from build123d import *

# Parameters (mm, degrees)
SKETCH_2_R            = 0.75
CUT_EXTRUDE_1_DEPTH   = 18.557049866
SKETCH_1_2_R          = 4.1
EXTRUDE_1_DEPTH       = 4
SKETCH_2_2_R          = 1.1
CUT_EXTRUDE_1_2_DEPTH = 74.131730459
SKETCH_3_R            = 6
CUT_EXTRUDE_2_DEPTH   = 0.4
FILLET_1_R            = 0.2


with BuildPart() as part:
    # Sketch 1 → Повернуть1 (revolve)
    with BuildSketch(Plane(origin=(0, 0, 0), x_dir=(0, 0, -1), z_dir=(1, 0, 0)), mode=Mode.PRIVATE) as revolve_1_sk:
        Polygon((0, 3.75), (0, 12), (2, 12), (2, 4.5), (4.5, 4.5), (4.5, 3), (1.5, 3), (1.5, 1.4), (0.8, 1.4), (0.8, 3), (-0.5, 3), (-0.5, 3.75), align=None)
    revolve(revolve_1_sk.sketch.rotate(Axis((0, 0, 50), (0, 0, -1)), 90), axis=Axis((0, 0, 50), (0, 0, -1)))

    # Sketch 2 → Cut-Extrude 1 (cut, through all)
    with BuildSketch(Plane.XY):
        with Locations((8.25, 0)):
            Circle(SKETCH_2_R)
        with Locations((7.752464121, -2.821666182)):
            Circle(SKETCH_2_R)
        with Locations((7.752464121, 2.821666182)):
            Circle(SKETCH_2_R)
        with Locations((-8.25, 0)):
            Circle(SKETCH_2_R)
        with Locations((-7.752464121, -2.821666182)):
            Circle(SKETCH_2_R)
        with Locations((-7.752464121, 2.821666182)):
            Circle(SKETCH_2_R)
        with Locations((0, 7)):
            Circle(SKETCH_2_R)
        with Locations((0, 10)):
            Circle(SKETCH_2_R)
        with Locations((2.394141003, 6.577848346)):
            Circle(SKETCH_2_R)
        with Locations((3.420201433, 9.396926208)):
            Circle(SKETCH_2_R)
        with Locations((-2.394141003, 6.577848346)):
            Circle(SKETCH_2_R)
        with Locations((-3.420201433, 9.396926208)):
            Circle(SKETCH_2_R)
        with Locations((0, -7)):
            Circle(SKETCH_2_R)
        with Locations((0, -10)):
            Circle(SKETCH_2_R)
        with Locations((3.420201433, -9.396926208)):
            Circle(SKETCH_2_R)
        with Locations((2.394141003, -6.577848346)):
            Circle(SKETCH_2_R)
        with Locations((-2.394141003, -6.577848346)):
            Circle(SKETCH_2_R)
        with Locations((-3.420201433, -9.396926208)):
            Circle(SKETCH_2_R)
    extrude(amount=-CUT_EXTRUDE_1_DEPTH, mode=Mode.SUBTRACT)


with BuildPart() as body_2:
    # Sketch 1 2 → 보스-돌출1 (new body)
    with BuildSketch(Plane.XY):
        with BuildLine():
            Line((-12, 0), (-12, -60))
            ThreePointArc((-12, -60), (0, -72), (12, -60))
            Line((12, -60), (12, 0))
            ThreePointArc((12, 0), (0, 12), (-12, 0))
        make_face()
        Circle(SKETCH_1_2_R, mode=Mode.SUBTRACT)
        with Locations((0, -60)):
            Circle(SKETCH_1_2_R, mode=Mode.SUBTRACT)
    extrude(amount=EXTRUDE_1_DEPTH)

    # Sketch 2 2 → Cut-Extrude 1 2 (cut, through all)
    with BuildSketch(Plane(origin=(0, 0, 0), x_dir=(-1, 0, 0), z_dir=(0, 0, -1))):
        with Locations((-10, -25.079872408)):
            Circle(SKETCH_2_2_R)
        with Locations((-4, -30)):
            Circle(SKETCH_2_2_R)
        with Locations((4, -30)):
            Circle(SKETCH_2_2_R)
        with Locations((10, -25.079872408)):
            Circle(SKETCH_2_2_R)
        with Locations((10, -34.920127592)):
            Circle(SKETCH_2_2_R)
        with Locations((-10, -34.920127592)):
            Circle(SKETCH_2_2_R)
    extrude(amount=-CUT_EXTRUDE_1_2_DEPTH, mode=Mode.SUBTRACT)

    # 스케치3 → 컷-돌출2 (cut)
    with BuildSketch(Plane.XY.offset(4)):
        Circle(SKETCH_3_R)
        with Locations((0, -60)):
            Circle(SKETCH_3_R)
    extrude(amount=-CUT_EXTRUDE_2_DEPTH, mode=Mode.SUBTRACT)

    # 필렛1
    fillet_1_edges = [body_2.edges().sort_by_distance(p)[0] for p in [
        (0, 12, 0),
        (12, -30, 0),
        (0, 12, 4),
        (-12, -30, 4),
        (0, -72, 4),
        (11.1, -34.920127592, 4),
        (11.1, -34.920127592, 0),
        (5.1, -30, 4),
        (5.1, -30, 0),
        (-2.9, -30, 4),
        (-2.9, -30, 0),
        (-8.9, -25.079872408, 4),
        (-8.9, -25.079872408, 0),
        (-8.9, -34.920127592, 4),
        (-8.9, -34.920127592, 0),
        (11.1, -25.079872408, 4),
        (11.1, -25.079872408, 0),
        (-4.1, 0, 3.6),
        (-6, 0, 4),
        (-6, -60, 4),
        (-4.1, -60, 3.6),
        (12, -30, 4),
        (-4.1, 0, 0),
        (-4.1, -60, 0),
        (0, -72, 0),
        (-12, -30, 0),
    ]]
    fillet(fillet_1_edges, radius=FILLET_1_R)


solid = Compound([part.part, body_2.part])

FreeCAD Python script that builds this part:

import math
import FreeCAD as App
import Part
import Sketcher
from FreeCAD import Vector


def edges_at(feature, points):
    """Names of the edges that pass closest to the given points."""
    edges = feature.Shape.Edges
    near = lambda p: min(range(len(edges)), key=lambda i: edges[i].distToShape(Part.Vertex(*p))[0])
    return sorted({f"Edge{near(p) + 1}" for p in points})


def add_polygon(sketch, points):
    """Adds a closed chain of lines whose ends are joined by coincident constraints."""
    first, n = sketch.GeometryCount, len(points)
    for a, b in zip(points, points[1:] + points[:1]):
        sketch.addGeometry(Part.LineSegment(App.Vector(*a, 0), App.Vector(*b, 0)), False)
    for i in range(n):
        sketch.addConstraint(Sketcher.Constraint("Coincident", first + i, 2, first + (i + 1) % n, 1))

doc = App.newDocument("Part")
body = doc.addObject("PartDesign::Body", "Body")

sketch1 = body.newObject("Sketcher::SketchObject", "Sketch")
sketch1.AttachmentSupport = (doc.getObject("YZ_Plane"), [""])
sketch1.MapMode = "FlatFace"
add_polygon(sketch1, [(12, 0), (3.75, 0), (3.75, 0.5), (3, 0.5), (3, -0.8), (1.4, -0.8), (1.4, -1.5), (3, -1.5), (3, -4.5), (4.5, -4.5), (4.5, -2), (12, -2)])
sketch1.addConstraint(Sketcher.Constraint("Horizontal", 0))
sketch1.addConstraint(Sketcher.Constraint("Vertical", 1))
sketch1.addConstraint(Sketcher.Constraint("Horizontal", 2))
sketch1.addConstraint(Sketcher.Constraint("Vertical", 3))
sketch1.addConstraint(Sketcher.Constraint("Horizontal", 4))
sketch1.addConstraint(Sketcher.Constraint("Vertical", 5))
sketch1.addConstraint(Sketcher.Constraint("Horizontal", 6))
sketch1.addConstraint(Sketcher.Constraint("Vertical", 7))
sketch1.addConstraint(Sketcher.Constraint("Horizontal", 8))
sketch1.addConstraint(Sketcher.Constraint("Vertical", 9))
sketch1.addConstraint(Sketcher.Constraint("Horizontal", 10))
sketch1.addConstraint(Sketcher.Constraint("Vertical", 11))
sketch1.addConstraint(Sketcher.Constraint("PointOnObject", 0, 2, -1))
sketch1.addConstraint(Sketcher.Constraint("Vertical", 3, 2, 6, 2))
sketch1.addConstraint(Sketcher.Constraint("DistanceY", 7, 2, 7, 1, 3.0))
sketch1.addConstraint(Sketcher.Constraint("DistanceY", 11, 1, 11, 2, 2.0))
sketch1.addConstraint(Sketcher.Constraint("DistanceX", 4, 2, 4, 1, 1.6))
sketch1.addConstraint(Sketcher.Constraint("DistanceX", 8, 1, 8, 2, 1.5))
sketch1.addConstraint(Sketcher.Constraint("DistanceX", 10, 1, 10, 2, 7.5))
sketch1.addConstraint(Sketcher.Constraint("DistanceY", 1, 1, 1, 2, 0.5))
sketch1.addConstraint(Sketcher.Constraint("DistanceY", 3, 2, 3, 1, 1.3))
sketch1.addConstraint(Sketcher.Constraint("DistanceY", 5, 2, 5, 1, 0.7))
sketch1.addConstraint(Sketcher.Constraint("DistanceX", -1, 1, 2, 2, 3.0))
sketch1.addConstraint(Sketcher.Constraint("DistanceX", 0, 2, 0, 1, 8.25))
revolution = body.newObject("PartDesign::Revolution", "Revolution")
revolution.Profile = sketch1
revolution.ReferenceAxis = (sketch1, ["V_Axis"])
revolution.Angle = 360

sketch2 = body.newObject("Sketcher::SketchObject", "Sketch001")
sketch2.AttachmentSupport = (doc.getObject("XY_Plane"), [""])
sketch2.MapMode = "FlatFace"
sketch2.addGeometry(Part.Circle(Vector(8.25, 0, 0), Vector(0, 0, 1), 0.75), False)
sketch2.addGeometry(Part.Circle(Vector(7.752464, -2.821666, 0), Vector(0, 0, 1), 0.75), False)
sketch2.addGeometry(Part.Circle(Vector(7.752464, 2.821666, 0), Vector(0, 0, 1), 0.75), False)
sketch2.addGeometry(Part.Circle(Vector(-8.25, 0, 0), Vector(0, 0, 1), 0.75), False)
sketch2.addGeometry(Part.Circle(Vector(-7.752464, -2.821666, 0), Vector(0, 0, 1), 0.75), False)
sketch2.addGeometry(Part.Circle(Vector(-7.752464, 2.821666, 0), Vector(0, 0, 1), 0.75), False)
sketch2.addGeometry(Part.Circle(Vector(0, 7, 0), Vector(0, 0, 1), 0.75), False)
sketch2.addGeometry(Part.Circle(Vector(0, 10, 0), Vector(0, 0, 1), 0.75), False)
sketch2.addGeometry(Part.Circle(Vector(2.394141, 6.577848, 0), Vector(0, 0, 1), 0.75), False)
sketch2.addGeometry(Part.Circle(Vector(3.420201, 9.396926, 0), Vector(0, 0, 1), 0.75), False)
sketch2.addGeometry(Part.Circle(Vector(-2.394141, 6.577848, 0), Vector(0, 0, 1), 0.75), False)
sketch2.addGeometry(Part.Circle(Vector(-3.420201, 9.396926, 0), Vector(0, 0, 1), 0.75), False)
sketch2.addGeometry(Part.Circle(Vector(0, -7, 0), Vector(0, 0, 1), 0.75), False)
sketch2.addGeometry(Part.Circle(Vector(0, -10, 0), Vector(0, 0, 1), 0.75), False)
sketch2.addGeometry(Part.Circle(Vector(3.420201, -9.396926, 0), Vector(0, 0, 1), 0.75), False)
sketch2.addGeometry(Part.Circle(Vector(2.394141, -6.577848, 0), Vector(0, 0, 1), 0.75), False)
sketch2.addGeometry(Part.Circle(Vector(-2.394141, -6.577848, 0), Vector(0, 0, 1), 0.75), False)
sketch2.addGeometry(Part.Circle(Vector(-3.420201, -9.396926, 0), Vector(0, 0, 1), 0.75), False)
sketch2.addConstraint(Sketcher.Constraint("Equal", 0, 1))
sketch2.addConstraint(Sketcher.Constraint("Equal", 1, 2))
sketch2.addConstraint(Sketcher.Constraint("Equal", 2, 3))
sketch2.addConstraint(Sketcher.Constraint("Equal", 3, 4))
sketch2.addConstraint(Sketcher.Constraint("Equal", 4, 5))
sketch2.addConstraint(Sketcher.Constraint("Equal", 5, 6))
sketch2.addConstraint(Sketcher.Constraint("Equal", 6, 7))
sketch2.addConstraint(Sketcher.Constraint("Equal", 7, 8))
sketch2.addConstraint(Sketcher.Constraint("Equal", 8, 9))
sketch2.addConstraint(Sketcher.Constraint("Equal", 9, 10))
sketch2.addConstraint(Sketcher.Constraint("Equal", 10, 11))
sketch2.addConstraint(Sketcher.Constraint("Equal", 11, 12))
sketch2.addConstraint(Sketcher.Constraint("Equal", 12, 13))
sketch2.addConstraint(Sketcher.Constraint("Equal", 13, 14))
sketch2.addConstraint(Sketcher.Constraint("Equal", 14, 15))
sketch2.addConstraint(Sketcher.Constraint("Equal", 15, 16))
sketch2.addConstraint(Sketcher.Constraint("Equal", 16, 17))
sketch2.addConstraint(Sketcher.Constraint("Symmetric", 0, 3, 3, 3, -1, 1))
sketch2.addConstraint(Sketcher.Constraint("Symmetric", 2, 3, 4, 3, -1, 1))
sketch2.addConstraint(Sketcher.Constraint("Symmetric", 1, 3, 5, 3, -1, 1))
sketch2.addConstraint(Sketcher.Constraint("Symmetric", 6, 3, 12, 3, -1, 1))
sketch2.addConstraint(Sketcher.Constraint("Symmetric", 7, 3, 13, 3, -1, 1))
sketch2.addConstraint(Sketcher.Constraint("Symmetric", 11, 3, 14, 3, -1, 1))
sketch2.addConstraint(Sketcher.Constraint("Symmetric", 10, 3, 15, 3, -1, 1))
sketch2.addConstraint(Sketcher.Constraint("Symmetric", 8, 3, 16, 3, -1, 1))
sketch2.addConstraint(Sketcher.Constraint("Symmetric", 9, 3, 17, 3, -1, 1))
sketch2.addConstraint(Sketcher.Constraint("Symmetric", 1, 3, 4, 3, -2))
sketch2.addConstraint(Sketcher.Constraint("Symmetric", 8, 3, 10, 3, -2))
sketch2.addConstraint(Sketcher.Constraint("Symmetric", 9, 3, 11, 3, -2))
sketch2.addConstraint(Sketcher.Constraint("PointOnObject", 0, 3, -1))
sketch2.addConstraint(Sketcher.Constraint("PointOnObject", 6, 3, -2))
sketch2.addConstraint(Sketcher.Constraint("PointOnObject", 7, 3, -2))
sketch2.addConstraint(Sketcher.Constraint("Diameter", 0, 1.5))
sketch2.addConstraint(Sketcher.Constraint("DistanceY", -1, 1, 6, 3, 7.0))
sketch2.addConstraint(Sketcher.Constraint("DistanceY", -1, 1, 7, 3, 10.0))
sketch2.addConstraint(Sketcher.Constraint("DistanceX", 3, 3, 0, 3, 16.5))
sketch2.addConstraint(Sketcher.Constraint("DistanceX", -1, 1, 9, 3, 3.420201))
sketch2.addConstraint(Sketcher.Constraint("DistanceX", -1, 1, 8, 3, 2.394141))
sketch2.addConstraint(Sketcher.Constraint("DistanceY", -1, 1, 8, 3, 6.577848))
sketch2.addConstraint(Sketcher.Constraint("DistanceX", 4, 3, 1, 3, 15.504928))
sketch2.addConstraint(Sketcher.Constraint("DistanceY", 2, 3, 9, 3, 6.57526))
sketch2.addConstraint(Sketcher.Constraint("DistanceY", 1, 3, -1, 1, 2.821666))
pocket1 = body.newObject("PartDesign::Pocket", "Pocket")
pocket1.Profile = sketch2
pocket1.Type = "ThroughAll"
body2 = doc.addObject("PartDesign::Body", "Body001")

sketch3 = body2.newObject("Sketcher::SketchObject", "Sketch002")
sketch3.AttachmentSupport = (doc.getObject("XY_Plane001"), [""])
sketch3.MapMode = "FlatFace"
sketch3.addGeometry(Part.LineSegment(Vector(-12, 0, 0), Vector(-12, -60, 0)), False)
sketch3.addGeometry(Part.ArcOfCircle(Part.Circle(Vector(0, -60, 0), Vector(0, 0, 1), 12), math.radians(180), math.radians(360)), False)
sketch3.addGeometry(Part.LineSegment(Vector(12, -60, 0), Vector(12, 0, 0)), False)
sketch3.addGeometry(Part.ArcOfCircle(Part.Circle(Vector(0, 0, 0), Vector(0, 0, 1), 12), math.radians(0), math.radians(180)), False)
sketch3.addGeometry(Part.Circle(Vector(0, -60, 0), Vector(0, 0, 1), 4.1), False)
sketch3.addGeometry(Part.Circle(Vector(0, 0, 0), Vector(0, 0, 1), 4.1), False)
sketch3.addConstraint(Sketcher.Constraint("Tangent", 0, 2, 1, 1))
sketch3.addConstraint(Sketcher.Constraint("Tangent", 1, 2, 2, 1))
sketch3.addConstraint(Sketcher.Constraint("Tangent", 2, 2, 3, 1))
sketch3.addConstraint(Sketcher.Constraint("Tangent", 3, 2, 0, 1))
sketch3.addConstraint(Sketcher.Constraint("Vertical", 0))
sketch3.addConstraint(Sketcher.Constraint("Vertical", 2))
sketch3.addConstraint(Sketcher.Constraint("Coincident", 3, 3, -1, 1))
sketch3.addConstraint(Sketcher.Constraint("Coincident", 5, 3, -1, 1))
sketch3.addConstraint(Sketcher.Constraint("Coincident", 4, 3, 1, 3))
sketch3.addConstraint(Sketcher.Constraint("Equal", 4, 5))
sketch3.addConstraint(Sketcher.Constraint("Radius", 1, 12.0))
sketch3.addConstraint(Sketcher.Constraint("Diameter", 4, 8.2))
sketch3.addConstraint(Sketcher.Constraint("DistanceY", 0, 2, 0, 1, 60.0))
pad1 = body2.newObject("PartDesign::Pad", "Pad")
pad1.Profile = sketch3
pad1.Length = 4

sketch4 = body2.newObject("Sketcher::SketchObject", "Sketch003")
sketch4.AttachmentSupport = (doc.getObject("XY_Plane001"), [""])
sketch4.MapMode = "FlatFace"
sketch4.addGeometry(Part.Circle(Vector(10, -25.079872, 0), Vector(0, 0, 1), 1.1), False)
sketch4.addGeometry(Part.Circle(Vector(4, -30, 0), Vector(0, 0, 1), 1.1), False)
sketch4.addGeometry(Part.Circle(Vector(-4, -30, 0), Vector(0, 0, 1), 1.1), False)
sketch4.addGeometry(Part.Circle(Vector(-10, -25.079872, 0), Vector(0, 0, 1), 1.1), False)
sketch4.addGeometry(Part.Circle(Vector(-10, -34.920128, 0), Vector(0, 0, 1), 1.1), False)
sketch4.addGeometry(Part.Circle(Vector(10, -34.920128, 0), Vector(0, 0, 1), 1.1), False)
sketch4.addConstraint(Sketcher.Constraint("Equal", 0, 1))
sketch4.addConstraint(Sketcher.Constraint("Equal", 1, 2))
sketch4.addConstraint(Sketcher.Constraint("Equal", 2, 3))
sketch4.addConstraint(Sketcher.Constraint("Equal", 3, 4))
sketch4.addConstraint(Sketcher.Constraint("Equal", 4, 5))
sketch4.addConstraint(Sketcher.Constraint("Symmetric", 1, 3, 2, 3, -2))
sketch4.addConstraint(Sketcher.Constraint("Symmetric", 0, 3, 3, 3, -2))
sketch4.addConstraint(Sketcher.Constraint("Symmetric", 4, 3, 5, 3, -2))
sketch4.addConstraint(Sketcher.Constraint("Vertical", 3, 3, 4, 3))
sketch4.addConstraint(Sketcher.Constraint("Diameter", 0, 2.2))
sketch4.addConstraint(Sketcher.Constraint("DistanceX", -1, 1, 0, 3, 10.0))
sketch4.addConstraint(Sketcher.Constraint("DistanceX", -1, 1, 1, 3, 4.0))
sketch4.addConstraint(Sketcher.Constraint("DistanceY", 1, 3, -1, 1, 30.0))
sketch4.addConstraint(Sketcher.Constraint("DistanceY", 0, 3, -1, 1, 25.079872))
sketch4.addConstraint(Sketcher.Constraint("DistanceY", 4, 3, -1, 1, 34.920128))
pocket2 = body2.newObject("PartDesign::Pocket", "Pocket001")
pocket2.Profile = sketch4
pocket2.Type = "ThroughAll"
pocket2.Reversed = True

sketch5 = body2.newObject("Sketcher::SketchObject", "Sketch004")
sketch5.AttachmentSupport = (doc.getObject("XY_Plane001"), [""])
sketch5.MapMode = "FlatFace"
sketch5.AttachmentOffset = App.Placement(Vector(0, 0, 4), App.Rotation())
sketch5.addGeometry(Part.Circle(Vector(0, 0, 0), Vector(0, 0, 1), 6), False)
sketch5.addGeometry(Part.Circle(Vector(0, -60, 0), Vector(0, 0, 1), 6), False)
sketch5.addConstraint(Sketcher.Constraint("Coincident", 0, 3, -1, 1))
sketch5.addConstraint(Sketcher.Constraint("Equal", 0, 1))
sketch5.addConstraint(Sketcher.Constraint("PointOnObject", 1, 3, -2))
sketch5.addConstraint(Sketcher.Constraint("Diameter", 0, 12.0))
sketch5.addConstraint(Sketcher.Constraint("DistanceY", 1, 3, -1, 1, 60.0))
pocket3 = body2.newObject("PartDesign::Pocket", "Pocket002")
pocket3.Profile = sketch5
pocket3.Length = 0.4
doc.recompute()

fillet = body2.newObject("PartDesign::Fillet", "Fillet")
fillet.Base = (pocket3, edges_at(pocket3, [
    (0, 12, 0),
    (12, -30, 0),
    (0, 12, 4),
    (-12, -30, 4),
    (0, -72, 4),
    (11.1, -34.92, 4),
    (11.1, -34.92, 0),
    (5.1, -30, 4),
    (5.1, -30, 0),
    (-2.9, -30, 4),
    (-2.9, -30, 0),
    (-8.9, -25.08, 4),
    (-8.9, -25.08, 0),
    (-8.9, -34.92, 4),
    (-8.9, -34.92, 0),
    (11.1, -25.08, 4),
    (11.1, -25.08, 0),
    (-4.1, 0, 3.6),
    (-6, 0, 4),
    (-6, -60, 4),
    (-4.1, -60, 3.6),
    (12, -30, 4),
    (-4.1, 0, 0),
    (-4.1, -60, 0),
    (0, -72, 0),
    (-12, -30, 0),
]))
fillet.Radius = 0.2

doc.recompute()
